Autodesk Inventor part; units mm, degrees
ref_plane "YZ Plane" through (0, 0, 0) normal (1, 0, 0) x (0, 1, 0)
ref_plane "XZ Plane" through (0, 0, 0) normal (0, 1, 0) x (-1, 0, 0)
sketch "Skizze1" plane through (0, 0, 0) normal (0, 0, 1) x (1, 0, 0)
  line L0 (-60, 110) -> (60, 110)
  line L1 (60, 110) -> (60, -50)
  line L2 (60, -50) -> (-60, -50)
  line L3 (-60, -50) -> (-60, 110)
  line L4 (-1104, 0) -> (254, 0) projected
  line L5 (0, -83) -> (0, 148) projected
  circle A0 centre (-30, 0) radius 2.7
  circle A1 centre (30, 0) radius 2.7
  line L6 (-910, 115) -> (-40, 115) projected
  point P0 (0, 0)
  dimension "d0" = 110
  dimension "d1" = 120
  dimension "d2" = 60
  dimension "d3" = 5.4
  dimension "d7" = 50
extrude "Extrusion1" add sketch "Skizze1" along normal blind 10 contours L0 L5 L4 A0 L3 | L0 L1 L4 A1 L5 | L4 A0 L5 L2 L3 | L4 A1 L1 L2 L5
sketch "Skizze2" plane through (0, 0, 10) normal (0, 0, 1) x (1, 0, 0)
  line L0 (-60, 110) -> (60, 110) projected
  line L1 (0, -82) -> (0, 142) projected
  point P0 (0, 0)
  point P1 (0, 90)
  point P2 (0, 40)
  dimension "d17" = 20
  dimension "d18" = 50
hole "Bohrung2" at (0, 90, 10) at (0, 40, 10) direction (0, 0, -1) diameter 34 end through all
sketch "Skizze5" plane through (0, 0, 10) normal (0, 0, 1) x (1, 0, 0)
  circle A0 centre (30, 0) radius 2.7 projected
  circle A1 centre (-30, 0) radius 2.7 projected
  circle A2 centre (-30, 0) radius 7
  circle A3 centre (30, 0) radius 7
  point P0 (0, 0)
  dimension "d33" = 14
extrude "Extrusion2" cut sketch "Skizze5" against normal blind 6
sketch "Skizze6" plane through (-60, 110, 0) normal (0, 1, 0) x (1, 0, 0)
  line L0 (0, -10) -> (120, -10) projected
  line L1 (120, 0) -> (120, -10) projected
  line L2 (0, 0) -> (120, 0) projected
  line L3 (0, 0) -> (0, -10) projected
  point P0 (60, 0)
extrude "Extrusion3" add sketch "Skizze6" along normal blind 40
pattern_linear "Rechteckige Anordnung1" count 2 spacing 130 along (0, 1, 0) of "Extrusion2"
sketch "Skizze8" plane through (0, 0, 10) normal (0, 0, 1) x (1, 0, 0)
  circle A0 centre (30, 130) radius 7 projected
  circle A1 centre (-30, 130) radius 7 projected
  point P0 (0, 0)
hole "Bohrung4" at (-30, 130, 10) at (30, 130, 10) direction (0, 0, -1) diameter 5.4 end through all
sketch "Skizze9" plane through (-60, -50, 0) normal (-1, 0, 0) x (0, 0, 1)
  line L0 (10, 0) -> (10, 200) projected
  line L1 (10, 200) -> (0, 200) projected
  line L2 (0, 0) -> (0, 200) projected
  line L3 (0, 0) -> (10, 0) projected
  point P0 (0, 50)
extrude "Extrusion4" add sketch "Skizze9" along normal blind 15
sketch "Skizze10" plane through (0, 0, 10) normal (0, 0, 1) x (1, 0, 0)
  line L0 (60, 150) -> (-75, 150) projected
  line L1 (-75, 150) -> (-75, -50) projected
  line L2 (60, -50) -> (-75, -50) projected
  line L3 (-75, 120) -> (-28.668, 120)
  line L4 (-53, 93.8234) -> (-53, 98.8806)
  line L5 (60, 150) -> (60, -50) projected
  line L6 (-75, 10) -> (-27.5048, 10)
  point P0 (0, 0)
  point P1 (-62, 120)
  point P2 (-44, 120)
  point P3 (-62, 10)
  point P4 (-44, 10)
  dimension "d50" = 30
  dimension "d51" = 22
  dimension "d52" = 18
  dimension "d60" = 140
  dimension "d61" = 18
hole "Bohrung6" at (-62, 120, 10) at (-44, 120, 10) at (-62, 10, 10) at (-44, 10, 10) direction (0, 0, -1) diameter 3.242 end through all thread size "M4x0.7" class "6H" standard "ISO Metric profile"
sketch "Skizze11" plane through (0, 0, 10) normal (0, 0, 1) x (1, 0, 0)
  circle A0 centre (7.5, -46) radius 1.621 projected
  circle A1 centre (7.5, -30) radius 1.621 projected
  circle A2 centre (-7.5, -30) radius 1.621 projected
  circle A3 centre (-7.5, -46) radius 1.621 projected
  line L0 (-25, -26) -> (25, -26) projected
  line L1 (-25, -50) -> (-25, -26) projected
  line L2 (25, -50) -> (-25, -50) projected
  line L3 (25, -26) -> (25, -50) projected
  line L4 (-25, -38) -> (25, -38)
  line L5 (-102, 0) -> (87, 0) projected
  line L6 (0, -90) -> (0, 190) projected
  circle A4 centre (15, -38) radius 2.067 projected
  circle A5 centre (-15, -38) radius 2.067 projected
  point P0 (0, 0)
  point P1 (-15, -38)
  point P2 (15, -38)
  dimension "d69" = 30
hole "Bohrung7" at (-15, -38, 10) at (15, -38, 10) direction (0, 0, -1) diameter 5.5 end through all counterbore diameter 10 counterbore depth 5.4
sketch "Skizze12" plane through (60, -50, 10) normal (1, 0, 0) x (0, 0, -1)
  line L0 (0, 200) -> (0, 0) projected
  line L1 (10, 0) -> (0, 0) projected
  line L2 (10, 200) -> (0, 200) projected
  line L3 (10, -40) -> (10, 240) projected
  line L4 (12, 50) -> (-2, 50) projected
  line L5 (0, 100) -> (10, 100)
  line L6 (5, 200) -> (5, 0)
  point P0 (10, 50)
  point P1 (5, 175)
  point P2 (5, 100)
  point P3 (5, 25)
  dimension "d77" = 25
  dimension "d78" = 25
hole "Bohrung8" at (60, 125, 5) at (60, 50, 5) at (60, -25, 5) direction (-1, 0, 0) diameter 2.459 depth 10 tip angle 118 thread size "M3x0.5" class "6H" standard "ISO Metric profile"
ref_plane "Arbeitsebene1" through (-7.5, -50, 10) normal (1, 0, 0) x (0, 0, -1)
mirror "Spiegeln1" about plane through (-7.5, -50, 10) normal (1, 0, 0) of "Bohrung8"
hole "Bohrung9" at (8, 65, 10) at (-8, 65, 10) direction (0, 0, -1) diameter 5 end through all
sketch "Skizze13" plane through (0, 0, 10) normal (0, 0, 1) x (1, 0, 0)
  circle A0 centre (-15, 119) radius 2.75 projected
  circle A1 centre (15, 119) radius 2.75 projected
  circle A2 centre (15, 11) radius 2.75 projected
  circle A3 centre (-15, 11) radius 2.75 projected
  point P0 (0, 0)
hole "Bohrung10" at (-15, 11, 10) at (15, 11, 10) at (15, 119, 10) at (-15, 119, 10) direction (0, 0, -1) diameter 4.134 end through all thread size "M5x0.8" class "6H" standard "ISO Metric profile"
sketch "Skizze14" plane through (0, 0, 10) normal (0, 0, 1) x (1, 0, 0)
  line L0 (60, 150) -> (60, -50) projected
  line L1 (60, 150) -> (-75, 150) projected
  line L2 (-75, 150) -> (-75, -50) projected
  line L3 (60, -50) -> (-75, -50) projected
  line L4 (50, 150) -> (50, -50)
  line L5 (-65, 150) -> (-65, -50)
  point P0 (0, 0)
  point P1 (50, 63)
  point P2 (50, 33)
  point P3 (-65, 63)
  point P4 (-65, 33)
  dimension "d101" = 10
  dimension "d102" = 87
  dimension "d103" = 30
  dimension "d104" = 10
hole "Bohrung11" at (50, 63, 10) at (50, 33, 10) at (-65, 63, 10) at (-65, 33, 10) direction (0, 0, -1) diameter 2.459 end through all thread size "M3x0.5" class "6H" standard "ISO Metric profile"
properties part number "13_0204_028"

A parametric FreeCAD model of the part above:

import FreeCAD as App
import Part
import Sketcher

V = App.Vector


def add_polygon(sketch, points):
    """Adds a closed chain of lines whose ends are joined by coincident constraints."""
    first, n = sketch.GeometryCount, len(points)
    for a, b in zip(points, points[1:] + points[:1]):
        sketch.addGeometry(Part.LineSegment(App.Vector(*a, 0), App.Vector(*b, 0)), False)
    for i in range(n):
        sketch.addConstraint(Sketcher.Constraint("Coincident", first + i, 2, first + (i + 1) % n, 1))

doc = App.newDocument("Part")
params = doc.addObject("Spreadsheet::Sheet", "Params")
for row, (alias, value) in enumerate([
    ("sketch1_diameter", "5.4 mm"),
    ("sketch1_width", "120 mm"),
    ("pad1_length", "10 mm"),
    ("sketch2_diameter", "34 mm"),
    ("hole_diameter", "34 mm"),
    ("sketch3_diameter", "14 mm"),
    ("sketch3_diameter2", "5.4 mm"),
    ("pocket1_length", "6 mm"),
    ("sketch4_width", "120 mm"),
    ("sketch4_height", "10 mm"),
    ("pad2_length", "40 mm"),
    ("linearpattern_pitch", "130 mm"),
    ("sketch5_diameter", "5.4 mm"),
    ("hole2_diameter", "5.4 mm"),
    ("sketch6_width", "200 mm"),
    ("sketch6_height", "10 mm"),
    ("pad3_length", "15 mm"),
    ("hole3_diameter", "3.242 mm"),
    ("sketch8_diameter", "5.5 mm"),
    ("hole4_diameter", "5.5 mm"),
    ("hole4_cbore_diameter", "10 mm"),
    ("hole4_cbore_depth", "5.4 mm"),
    ("hole5_diameter", "2.459 mm"),
    ("hole5_depth", "10 mm"),
    ("sketch10_diameter", "5 mm"),
    ("hole6_diameter", "5 mm"),
    ("hole7_diameter", "4.134 mm"),
    ("hole8_diameter", "2.459 mm"),
], start=1):
    params.set(f"A{row}", alias)
    params.set(f"B{row}", "=" + value)
    params.setAlias(f"B{row}", alias)

body = doc.addObject("PartDesign::Body", "Body")

sketch1 = body.newObject("Sketcher::SketchObject", "Sketch")
sketch1.AttachmentSupport = (doc.getObject("XY_Plane"), [""])
sketch1.MapMode = "FlatFace"
add_polygon(sketch1, [(-60, 110), (-60, -50), (60, -50), (60, 110)])
sketch1.addGeometry(Part.Circle(V(-30, 0, 0), V(0, 0, 1), 2.7), False)
sketch1.addGeometry(Part.Circle(V(30, 0, 0), V(0, 0, 1), 2.7), False)
sketch1.addConstraint(Sketcher.Constraint("Vertical", 0))
sketch1.addConstraint(Sketcher.Constraint("Horizontal", 1))
sketch1.addConstraint(Sketcher.Constraint("Vertical", 2))
sketch1.addConstraint(Sketcher.Constraint("Horizontal", 3))
sketch1.addConstraint(Sketcher.Constraint("Equal", 4, 5))
sketch1.addConstraint(Sketcher.Constraint("Symmetric", 4, 3, 5, 3, -1, 1))
sketch1.addConstraint(Sketcher.Constraint("PointOnObject", 4, 3, -1))
sketch1.addConstraint(Sketcher.Constraint("Diameter", 4, 5.4))
sketch1.addConstraint(Sketcher.Constraint("DistanceX", 1, 1, 1, 2, 120.0))
sketch1.addConstraint(Sketcher.Constraint("DistanceX", 0, 2, -1, 1, 60.0))
sketch1.addConstraint(Sketcher.Constraint("DistanceY", 0, 2, -1, 1, 50.0))
sketch1.addConstraint(Sketcher.Constraint("DistanceY", -1, 1, 2, 2, 110.0))
sketch1.addConstraint(Sketcher.Constraint("DistanceX", 4, 3, 5, 3, 60.0))
sketch1.setExpression("Constraints[11]", "Params.sketch1_diameter")
sketch1.setExpression("Constraints[12]", "Params.sketch1_width")
pad1 = body.newObject("PartDesign::Pad", "Pad")
pad1.Profile = sketch1
pad1.setExpression("Length", "Params.pad1_length")

sketch2 = body.newObject("Sketcher::SketchObject", "Sketch001")
sketch2.AttachmentSupport = (doc.getObject("XY_Plane"), [""])
sketch2.MapMode = "FlatFace"
sketch2.AttachmentOffset = App.Placement(V(0, 0, 10), App.Rotation())
sketch2.addGeometry(Part.Circle(V(0, 90, 0), V(0, 0, 1), 17), False)
sketch2.addGeometry(Part.Circle(V(0, 40, 0), V(0, 0, 1), 17), False)
sketch2.addConstraint(Sketcher.Constraint("Equal", 0, 1))
sketch2.addConstraint(Sketcher.Constraint("PointOnObject", 0, 3, -2))
sketch2.addConstraint(Sketcher.Constraint("PointOnObject", 1, 3, -2))
sketch2.addConstraint(Sketcher.Constraint("Diameter", 0, 34.0))
sketch2.addConstraint(Sketcher.Constraint("DistanceY", -1, 1, 0, 3, 90.0))
sketch2.addConstraint(Sketcher.Constraint("DistanceY", -1, 1, 1, 3, 40.0))
sketch2.setExpression("Constraints[3]", "Params.sketch2_diameter")
doc.recompute()
hole = body.newObject("PartDesign::Hole", "Hole")
hole.Profile = sketch2
hole.ThreadType = "None"
hole.setExpression("Diameter", "Params.hole_diameter")
hole.DepthType = "ThroughAll"

sketch3 = body.newObject("Sketcher::SketchObject", "Sketch002")
sketch3.AttachmentSupport = (doc.getObject("XY_Plane"), [""])
sketch3.MapMode = "FlatFace"
sketch3.AttachmentOffset = App.Placement(V(0, 0, 10), App.Rotation())
sketch3.addGeometry(Part.Circle(V(-30, 0, 0), V(0, 0, 1), 7), False)
sketch3.addGeometry(Part.Circle(V(-30, 0, 0), V(0, 0, 1), 2.7), False)
sketch3.addGeometry(Part.Circle(V(30, 0, 0), V(0, 0, 1), 7), False)
sketch3.addGeometry(Part.Circle(V(30, 0, 0), V(0, 0, 1), 2.7), False)
sketch3.addConstraint(Sketcher.Constraint("Coincident", 1, 3, 0, 3))
sketch3.addConstraint(Sketcher.Constraint("Coincident", 3, 3, 2, 3))
sketch3.addConstraint(Sketcher.Constraint("Equal", 0, 2))
sketch3.addConstraint(Sketcher.Constraint("Equal", 1, 3))
sketch3.addConstraint(Sketcher.Constraint("Symmetric", 0, 3, 2, 3, -1, 1))
sketch3.addConstraint(Sketcher.Constraint("PointOnObject", 0, 3, -1))
sketch3.addConstraint(Sketcher.Constraint("Diameter", 0, 14.0))
sketch3.addConstraint(Sketcher.Constraint("Diameter", 1, 5.4))
sketch3.addConstraint(Sketcher.Constraint("DistanceX", 0, 3, -1, 1, 30.0))
sketch3.setExpression("Constraints[6]", "Params.sketch3_diameter")
sketch3.setExpression("Constraints[7]", "Params.sketch3_diameter2")
pocket1 = body.newObject("PartDesign::Pocket", "Pocket")
pocket1.Profile = sketch3
pocket1.setExpression("Length", "Params.pocket1_length")

sketch4 = body.newObject("Sketcher::SketchObject", "Sketch003")
sketch4.AttachmentSupport = (doc.getObject("XZ_Plane"), [""])
sketch4.MapMode = "FlatFace"
sketch4.AttachmentOffset = App.Placement(V(0, 0, -110), App.Rotation())
add_polygon(sketch4, [(-60, 0), (-60, 10), (60, 10), (60, 0)])
sketch4.addConstraint(Sketcher.Constraint("Vertical", 0))
sketch4.addConstraint(Sketcher.Constraint("Horizontal", 1))
sketch4.addConstraint(Sketcher.Constraint("Vertical", 2))
sketch4.addConstraint(Sketcher.Constraint("Horizontal", 3))
sketch4.addConstraint(Sketcher.Constraint("Symmetric", 2, 2, 3, 2, -1, 1))
sketch4.addConstraint(Sketcher.Constraint("DistanceX", 1, 1, 1, 2, 120.0))
sketch4.addConstraint(Sketcher.Constraint("DistanceY", 0, 1, 0, 2, 10.0))
sketch4.setExpression("Constraints[9]", "Params.sketch4_width")
sketch4.setExpression("Constraints[10]", "Params.sketch4_height")
pad2 = body.newObject("PartDesign::Pad", "Pad001")
pad2.Profile = sketch4
pad2.setExpression("Length", "Params.pad2_length")
pad2.Reversed = True
doc.recompute()

linearpattern = body.newObject("PartDesign::LinearPattern", "LinearPattern")
linearpattern.Originals = [pocket1]
linearpattern.Direction = (doc.getObject("Y_Axis"), [""])
linearpattern.Mode = "offset"
linearpattern.setExpression("Offset", "Params.linearpattern_pitch")
linearpattern.Occurrences = 2
body.Tip = linearpattern

sketch5 = body.newObject("Sketcher::SketchObject", "Sketch004")
sketch5.AttachmentSupport = (doc.getObject("XY_Plane"), [""])
sketch5.MapMode = "FlatFace"
sketch5.AttachmentOffset = App.Placement(V(0, 0, 10), App.Rotation())
sketch5.addGeometry(Part.Circle(V(-30, 130, 0), V(0, 0, 1), 2.7), False)
sketch5.addGeometry(Part.Circle(V(30, 130, 0), V(0, 0, 1), 2.7), False)
sketch5.addConstraint(Sketcher.Constraint("Equal", 0, 1))
sketch5.addConstraint(Sketcher.Constraint("Symmetric", 0, 3, 1, 3, -2))
sketch5.addConstraint(Sketcher.Constraint("Diameter", 0, 5.4))
sketch5.addConstraint(Sketcher.Constraint("DistanceX", 0, 3, -1, 1, 30.0))
sketch5.addConstraint(Sketcher.Constraint("DistanceY", -1, 1, 0, 3, 130.0))
sketch5.setExpression("Constraints[2]", "Params.sketch5_diameter")
doc.recompute()
hole2 = body.newObject("PartDesign::Hole", "Hole001")
hole2.Profile = sketch5
hole2.ThreadType = "None"
hole2.setExpression("Diameter", "Params.hole2_diameter")
hole2.DepthType = "ThroughAll"

sketch6 = body.newObject("Sketcher::SketchObject", "Sketch005")
sketch6.AttachmentSupport = (doc.getObject("YZ_Plane"), [""])
sketch6.MapMode = "FlatFace"
sketch6.AttachmentOffset = App.Placement(V(0, 0, -60), App.Rotation())
add_polygon(sketch6, [(-50, 0), (-50, 10), (150, 10), (150, 0)])
sketch6.addConstraint(Sketcher.Constraint("Vertical", 0))
sketch6.addConstraint(Sketcher.Constraint("Horizontal", 1))
sketch6.addConstraint(Sketcher.Constraint("Vertical", 2))
sketch6.addConstraint(Sketcher.Constraint("Horizontal", 3))
sketch6.addConstraint(Sketcher.Constraint("PointOnObject", 2, 2, -1))
sketch6.addConstraint(Sketcher.Constraint("DistanceX", 1, 1, 1, 2, 200.0))
sketch6.addConstraint(Sketcher.Constraint("DistanceY", 0, 1, 0, 2, 10.0))
sketch6.addConstraint(Sketcher.Constraint("DistanceX", 0, 2, -1, 1, 50.0))
sketch6.setExpression("Constraints[9]", "Params.sketch6_width")
sketch6.setExpression("Constraints[10]", "Params.sketch6_height")
pad3 = body.newObject("PartDesign::Pad", "Pad002")
pad3.Profile = sketch6
pad3.setExpression("Length", "Params.pad3_length")
pad3.Reversed = True

sketch7 = body.newObject("Sketcher::SketchObject", "Sketch006")
sketch7.AttachmentSupport = (doc.getObject("XY_Plane"), [""])
sketch7.MapMode = "FlatFace"
sketch7.AttachmentOffset = App.Placement(V(0, 0, 10), App.Rotation())
sketch7.addGeometry(Part.Circle(V(-62, 120, 0), V(0, 0, 1), 1.621), False)
sketch7.addGeometry(Part.Circle(V(-44, 120, 0), V(0, 0, 1), 1.621), False)
sketch7.addGeometry(Part.Circle(V(-62, 10, 0), V(0, 0, 1), 1.621), False)
sketch7.addGeometry(Part.Circle(V(-44, 10, 0), V(0, 0, 1), 1.621), False)
sketch7.addConstraint(Sketcher.Constraint("Equal", 0, 1))
sketch7.addConstraint(Sketcher.Constraint("Equal", 1, 2))
sketch7.addConstraint(Sketcher.Constraint("Equal", 2, 3))
sketch7.addConstraint(Sketcher.Constraint("Horizontal", 0, 3, 1, 3))
sketch7.addConstraint(Sketcher.Constraint("Horizontal", 2, 3, 3, 3))
sketch7.addConstraint(Sketcher.Constraint("Vertical", 0, 3, 2, 3))
sketch7.addConstraint(Sketcher.Constraint("Vertical", 1, 3, 3, 3))
sketch7.addConstraint(Sketcher.Constraint("Diameter", 0, 3.242))
sketch7.addConstraint(Sketcher.Constraint("DistanceX", 0, 3, -1, 1, 62.0))
sketch7.addConstraint(Sketcher.Constraint("DistanceY", -1, 1, 0, 3, 120.0))
sketch7.addConstraint(Sketcher.Constraint("DistanceX", 1, 3, -1, 1, 44.0))
sketch7.addConstraint(Sketcher.Constraint("DistanceY", -1, 1, 2, 3, 10.0))
doc.recompute()
hole3 = body.newObject("PartDesign::Hole", "Hole002")
hole3.Profile = sketch7
hole3.ThreadType = "None"
hole3.setExpression("Diameter", "Params.hole3_diameter")
hole3.DepthType = "ThroughAll"

sketch8 = body.newObject("Sketcher::SketchObject", "Sketch007")
sketch8.AttachmentSupport = (doc.getObject("XY_Plane"), [""])
sketch8.MapMode = "FlatFace"
sketch8.AttachmentOffset = App.Placement(V(0, 0, 10), App.Rotation())
sketch8.addGeometry(Part.Circle(V(-15, -38, 0), V(0, 0, 1), 2.75), False)
sketch8.addGeometry(Part.Circle(V(15, -38, 0), V(0, 0, 1), 2.75), False)
sketch8.addConstraint(Sketcher.Constraint("Equal", 0, 1))
sketch8.addConstraint(Sketcher.Constraint("Symmetric", 0, 3, 1, 3, -2))
sketch8.addConstraint(Sketcher.Constraint("Diameter", 0, 5.5))
sketch8.addConstraint(Sketcher.Constraint("DistanceX", 0, 3, -1, 1, 15.0))
sketch8.addConstraint(Sketcher.Constraint("DistanceY", 0, 3, -1, 1, 38.0))
sketch8.setExpression("Constraints[2]", "Params.sketch8_diameter")
doc.recompute()
hole4 = body.newObject("PartDesign::Hole", "Hole003")
hole4.Profile = sketch8
hole4.ThreadType = "None"
hole4.setExpression("Diameter", "Params.hole4_diameter")
hole4.DepthType = "ThroughAll"
hole4.HoleCutType = "Counterbore"
hole4.setExpression("HoleCutDiameter", "Params.hole4_cbore_diameter")
hole4.setExpression("HoleCutDepth", "Params.hole4_cbore_depth")

sketch9 = body.newObject("Sketcher::SketchObject", "Sketch008")
sketch9.AttachmentSupport = (doc.getObject("YZ_Plane"), [""])
sketch9.MapMode = "FlatFace"
sketch9.AttachmentOffset = App.Placement(V(0, 0, 60), App.Rotation())
sketch9.addGeometry(Part.Circle(V(125, 5, 0), V(0, 0, 1), 1.2295), False)
sketch9.addGeometry(Part.Circle(V(50, 5, 0), V(0, 0, 1), 1.2295), False)
sketch9.addGeometry(Part.Circle(V(-25, 5, 0), V(0, 0, 1), 1.2295), False)
sketch9.addConstraint(Sketcher.Constraint("Equal", 0, 1))
sketch9.addConstraint(Sketcher.Constraint("Equal", 1, 2))
sketch9.addConstraint(Sketcher.Constraint("Horizontal", 0, 3, 1, 3))
sketch9.addConstraint(Sketcher.Constraint("Horizontal", 1, 3, 2, 3))
sketch9.addConstraint(Sketcher.Constraint("Diameter", 0, 2.459))
sketch9.addConstraint(Sketcher.Constraint("DistanceX", -1, 1, 0, 3, 125.0))
sketch9.addConstraint(Sketcher.Constraint("DistanceY", -1, 1, 0, 3, 5.0))
sketch9.addConstraint(Sketcher.Constraint("DistanceX", -1, 1, 1, 3, 50.0))
sketch9.addConstraint(Sketcher.Constraint("DistanceX", 2, 3, -1, 1, 25.0))
doc.recompute()
hole5 = body.newObject("PartDesign::Hole", "Hole004")
hole5.Profile = sketch9
hole5.ThreadType = "None"
hole5.setExpression("Diameter", "Params.hole5_diameter")
hole5.DepthType = "Dimension"
hole5.setExpression("Depth", "Params.hole5_depth")
hole5.DrillPoint = "Angled"
hole5.DrillPointAngle = 118
doc.recompute()

datumplane = body.newObject("PartDesign::Plane", "DatumPlane")
datumplane.AttachmentSupport = (doc.getObject("YZ_Plane"), [""])
datumplane.MapMode = "FlatFace"
datumplane.AttachmentOffset = App.Placement(V(0, 0, -7.5), App.Rotation())
mirrored = body.newObject("PartDesign::Mirrored", "Mirrored")
mirrored.Originals = [hole5]
mirrored.MirrorPlane = (datumplane, [""])
body.Tip = mirrored

sketch10 = body.newObject("Sketcher::SketchObject", "Sketch009")
sketch10.AttachmentSupport = (doc.getObject("XY_Plane"), [""])
sketch10.MapMode = "FlatFace"
sketch10.AttachmentOffset = App.Placement(V(0, 0, 10), App.Rotation())
sketch10.addGeometry(Part.Circle(V(8, 65, 0), V(0, 0, 1), 2.5), False)
sketch10.addGeometry(Part.Circle(V(-8, 65, 0), V(0, 0, 1), 2.5), False)
sketch10.addConstraint(Sketcher.Constraint("Equal", 0, 1))
sketch10.addConstraint(Sketcher.Constraint("Symmetric", 0, 3, 1, 3, -2))
sketch10.addConstraint(Sketcher.Constraint("Diameter", 0, 5.0))
sketch10.addConstraint(Sketcher.Constraint("DistanceX", -1, 1, 0, 3, 8.0))
sketch10.addConstraint(Sketcher.Constraint("DistanceY", -1, 1, 0, 3, 65.0))
sketch10.setExpression("Constraints[2]", "Params.sketch10_diameter")
doc.recompute()
hole6 = body.newObject("PartDesign::Hole", "Hole005")
hole6.Profile = sketch10
hole6.ThreadType = "None"
hole6.setExpression("Diameter", "Params.hole6_diameter")
hole6.DepthType = "ThroughAll"

sketch11 = body.newObject("Sketcher::SketchObject", "Sketch010")
sketch11.AttachmentSupport = (doc.getObject("XY_Plane"), [""])
sketch11.MapMode = "FlatFace"
sketch11.AttachmentOffset = App.Placement(V(0, 0, 10), App.Rotation())
sketch11.addGeometry(Part.Circle(V(-15, 11, 0), V(0, 0, 1), 2.067), False)
sketch11.addGeometry(Part.Circle(V(15, 11, 0), V(0, 0, 1), 2.067), False)
sketch11.addGeometry(Part.Circle(V(15, 119, 0), V(0, 0, 1), 2.067), False)
sketch11.addGeometry(Part.Circle(V(-15, 119, 0), V(0, 0, 1), 2.067), False)
sketch11.addConstraint(Sketcher.Constraint("Equal", 0, 1))
sketch11.addConstraint(Sketcher.Constraint("Equal", 1, 2))
sketch11.addConstraint(Sketcher.Constraint("Equal", 2, 3))
sketch11.addConstraint(Sketcher.Constraint("Symmetric", 0, 3, 1, 3, -2))
sketch11.addConstraint(Sketcher.Constraint("Symmetric", 2, 3, 3, 3, -2))
sketch11.addConstraint(Sketcher.Constraint("Vertical", 1, 3, 2, 3))
sketch11.addConstraint(Sketcher.Constraint("Diameter", 0, 4.134))
sketch11.addConstraint(Sketcher.Constraint("DistanceX", 0, 3, -1, 1, 15.0))
sketch11.addConstraint(Sketcher.Constraint("DistanceY", -1, 1, 0, 3, 11.0))
sketch11.addConstraint(Sketcher.Constraint("DistanceY", -1, 1, 2, 3, 119.0))
doc.recompute()
hole7 = body.newObject("PartDesign::Hole", "Hole006")
hole7.Profile = sketch11
hole7.ThreadType = "None"
hole7.setExpression("Diameter", "Params.hole7_diameter")
hole7.DepthType = "ThroughAll"

sketch12 = body.newObject("Sketcher::SketchObject", "Sketch011")
sketch12.AttachmentSupport = (doc.getObject("XY_Plane"), [""])
sketch12.MapMode = "FlatFace"
sketch12.AttachmentOffset = App.Placement(V(0, 0, 10), App.Rotation())
sketch12.addGeometry(Part.Circle(V(50, 63, 0), V(0, 0, 1), 1.2295), False)
sketch12.addGeometry(Part.Circle(V(50, 33, 0), V(0, 0, 1), 1.2295), False)
sketch12.addGeometry(Part.Circle(V(-65, 63, 0), V(0, 0, 1), 1.2295), False)
sketch12.addGeometry(Part.Circle(V(-65, 33, 0), V(0, 0, 1), 1.2295), False)
sketch12.addConstraint(Sketcher.Constraint("Equal", 0, 1))
sketch12.addConstraint(Sketcher.Constraint("Equal", 1, 2))
sketch12.addConstraint(Sketcher.Constraint("Equal", 2, 3))
sketch12.addConstraint(Sketcher.Constraint("Horizontal", 0, 3, 2, 3))
sketch12.addConstraint(Sketcher.Constraint("Horizontal", 1, 3, 3, 3))
sketch12.addConstraint(Sketcher.Constraint("Vertical", 0, 3, 1, 3))
sketch12.addConstraint(Sketcher.Constraint("Vertical", 2, 3, 3, 3))
sketch12.addConstraint(Sketcher.Constraint("Diameter", 0, 2.459))
sketch12.addConstraint(Sketcher.Constraint("DistanceX", -1, 1, 0, 3, 50.0))
sketch12.addConstraint(Sketcher.Constraint("DistanceY", -1, 1, 0, 3, 63.0))
sketch12.addConstraint(Sketcher.Constraint("DistanceY", -1, 1, 1, 3, 33.0))
sketch12.addConstraint(Sketcher.Constraint("DistanceX", 2, 3, -1, 1, 65.0))
doc.recompute()
hole8 = body.newObject("PartDesign::Hole", "Hole007")
hole8.Profile = sketch12
hole8.ThreadType = "None"
hole8.setExpression("Diameter", "Params.hole8_diameter")
hole8.DepthType = "ThroughAll"

doc.recompute()
